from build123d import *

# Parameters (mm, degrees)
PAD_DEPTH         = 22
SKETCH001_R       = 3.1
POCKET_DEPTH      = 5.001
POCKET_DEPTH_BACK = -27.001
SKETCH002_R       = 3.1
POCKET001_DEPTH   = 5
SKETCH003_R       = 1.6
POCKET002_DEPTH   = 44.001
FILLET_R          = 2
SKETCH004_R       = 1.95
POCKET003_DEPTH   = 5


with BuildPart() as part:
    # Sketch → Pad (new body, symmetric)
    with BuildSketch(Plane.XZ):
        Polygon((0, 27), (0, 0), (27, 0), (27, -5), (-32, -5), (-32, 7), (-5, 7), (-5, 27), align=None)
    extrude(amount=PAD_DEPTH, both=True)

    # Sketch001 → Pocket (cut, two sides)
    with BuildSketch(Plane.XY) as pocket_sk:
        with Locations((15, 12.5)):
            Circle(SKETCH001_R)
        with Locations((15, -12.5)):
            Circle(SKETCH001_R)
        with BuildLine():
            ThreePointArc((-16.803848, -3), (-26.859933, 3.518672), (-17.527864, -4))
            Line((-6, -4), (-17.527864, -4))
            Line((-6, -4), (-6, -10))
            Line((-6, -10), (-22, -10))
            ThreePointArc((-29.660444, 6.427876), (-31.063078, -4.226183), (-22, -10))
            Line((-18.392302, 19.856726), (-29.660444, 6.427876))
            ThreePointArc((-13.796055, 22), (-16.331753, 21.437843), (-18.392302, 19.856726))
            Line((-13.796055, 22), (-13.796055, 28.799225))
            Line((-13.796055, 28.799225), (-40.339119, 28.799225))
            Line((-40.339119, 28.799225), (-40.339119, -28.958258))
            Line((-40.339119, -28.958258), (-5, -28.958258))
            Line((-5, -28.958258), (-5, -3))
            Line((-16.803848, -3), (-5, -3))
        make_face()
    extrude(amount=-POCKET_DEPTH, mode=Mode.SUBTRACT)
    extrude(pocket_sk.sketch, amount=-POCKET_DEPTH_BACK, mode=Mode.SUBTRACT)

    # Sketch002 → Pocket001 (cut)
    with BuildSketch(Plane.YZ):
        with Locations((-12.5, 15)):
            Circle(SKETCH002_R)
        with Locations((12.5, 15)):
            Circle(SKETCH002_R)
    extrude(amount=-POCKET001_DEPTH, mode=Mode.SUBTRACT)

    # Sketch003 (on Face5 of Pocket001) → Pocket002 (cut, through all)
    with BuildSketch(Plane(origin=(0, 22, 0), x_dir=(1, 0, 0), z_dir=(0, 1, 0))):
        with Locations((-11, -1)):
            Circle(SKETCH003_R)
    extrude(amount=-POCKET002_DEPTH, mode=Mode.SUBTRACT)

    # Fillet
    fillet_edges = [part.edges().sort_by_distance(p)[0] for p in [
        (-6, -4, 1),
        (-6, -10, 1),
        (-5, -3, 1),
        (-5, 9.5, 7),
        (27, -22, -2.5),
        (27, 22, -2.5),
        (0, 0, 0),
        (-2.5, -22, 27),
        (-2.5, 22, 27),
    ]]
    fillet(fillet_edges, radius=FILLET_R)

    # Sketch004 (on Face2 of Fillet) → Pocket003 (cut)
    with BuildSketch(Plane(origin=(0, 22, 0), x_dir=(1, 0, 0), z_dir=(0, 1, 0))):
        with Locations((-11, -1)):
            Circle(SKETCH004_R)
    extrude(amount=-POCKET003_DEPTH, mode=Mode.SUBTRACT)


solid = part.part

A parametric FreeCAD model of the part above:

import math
import FreeCAD as App
import Part
import Sketcher
from FreeCAD import Vector
Q = App.Units.Quantity


def edges_at(feature, points):
    """Names of the edges that pass closest to the given points."""
    edges = feature.Shape.Edges
    near = lambda p: min(range(len(edges)), key=lambda i: edges[i].distToShape(Part.Vertex(*p))[0])
    return sorted({f"Edge{near(p) + 1}" for p in points})


def add_polygon(sketch, points):
    """Adds a closed chain of lines whose ends are joined by coincident constraints."""
    first, n = sketch.GeometryCount, len(points)
    for a, b in zip(points, points[1:] + points[:1]):
        sketch.addGeometry(Part.LineSegment(App.Vector(*a, 0), App.Vector(*b, 0)), False)
    for i in range(n):
        sketch.addConstraint(Sketcher.Constraint("Coincident", first + i, 2, first + (i + 1) % n, 1))

doc = App.newDocument("Part")
body = doc.addObject("PartDesign::Body", "Body")

# Sketch on XZ plane
sketch1 = doc.addObject("Sketcher::SketchObject", "Sketch")
body.addObject(sketch1)
sketch1.AttachmentSupport = (doc.XZ_Plane, [""])
sketch1.MapMode = "FlatFace"
add_polygon(sketch1, [(0, 0), (0, 27), (-5, 27), (-5, 7), (-32, 7), (-32, -5), (27, -5), (27, 0)])  # lines 0-7
sketch1.addConstraint(Sketcher.Constraint("Vertical", 0))
sketch1.addConstraint(Sketcher.Constraint("Horizontal", 1))
sketch1.addConstraint(Sketcher.Constraint("Vertical", 2))
sketch1.addConstraint(Sketcher.Constraint("Horizontal", 3))
sketch1.addConstraint(Sketcher.Constraint("Vertical", 4))
sketch1.addConstraint(Sketcher.Constraint("Horizontal", 5))
sketch1.addConstraint(Sketcher.Constraint("Vertical", 6))
sketch1.addConstraint(Sketcher.Constraint("Horizontal", 7))
sketch1.addConstraint(Sketcher.Constraint("Coincident", 7, 2, -1, 1))
sketch1.addConstraint(Sketcher.Constraint("Equal", 3, 7))
sketch1.addConstraint(Sketcher.Constraint("Equal", 7, 0))
sketch1.addConstraint(Sketcher.Constraint("Equal", 1, 6))
sketch1.addConstraint(Sketcher.Constraint("DistanceX", 1, 2, 1, 1, 5.0))
sketch1.addConstraint(Sketcher.Constraint("DistanceX", 3, 2, 3, 1, 27.0))
sketch1.addConstraint(Sketcher.Constraint("DistanceY", 2, 2, 2, 1, 20.0))
pad1 = doc.addObject("PartDesign::Pad", "Pad")
body.addObject(pad1)
pad1.Profile = sketch1
pad1.Length = 44
pad1.Midplane = True

# Sketch on XY plane
sketch2 = doc.addObject("Sketcher::SketchObject", "Sketch001")
body.addObject(sketch2)
sketch2.AttachmentSupport = (doc.XY_Plane, [""])
sketch2.MapMode = "FlatFace"
sketch2.addGeometry(Part.Circle(Vector(15, 12.5, 0), Vector(0, 0, 1), 3.1), False)
sketch2.addGeometry(Part.Circle(Vector(15, -12.5, 0), Vector(0, 0, 1), 3.1), False)
sketch2.addGeometry(Part.ArcOfCircle(Part.Circle(Vector(-22, 0, 0), Vector(0, 0, 1), 6), math.radians(-30), math.radians(318)), False)
sketch2.addGeometry(Part.LineSegment(Vector(-17.5, -4, 0), Vector(-6, -4, 0)), False)
sketch2.addGeometry(Part.LineSegment(Vector(-6, -4, 0), Vector(-6, -10, 0)), False)
sketch2.addGeometry(Part.LineSegment(Vector(-6, -10, 0), Vector(-22, -10, 0)), False)
sketch2.addGeometry(Part.ArcOfCircle(Part.Circle(Vector(-22, 0, 0), Vector(0, 0, 1), 10), math.radians(140), math.radians(270)), False)
sketch2.addGeometry(Part.LineSegment(Vector(-29.7, 6.4, 0), Vector(-18.4, 19.9, 0)), False)
sketch2.addGeometry(Part.ArcOfCircle(Part.Circle(Vector(-13.8, 16, 0), Vector(0, 0, 1), 6), math.radians(90), math.radians(140)), False)
sketch2.addGeometry(Part.LineSegment(Vector(-13.8, 22, 0), Vector(-13.8, 28.8, 0)), False)
sketch2.addGeometry(Part.LineSegment(Vector(-13.8, 28.8, 0), Vector(-40.3, 28.8, 0)), False)
sketch2.addGeometry(Part.LineSegment(Vector(-40.3, 28.8, 0), Vector(-40.3, -29, 0)), False)
sketch2.addGeometry(Part.LineSegment(Vector(-40.3, -29, 0), Vector(-5, -29, 0)), False)
sketch2.addGeometry(Part.LineSegment(Vector(-5, -29, 0), Vector(-5, -3, 0)), False)
sketch2.addGeometry(Part.LineSegment(Vector(-5, -3, 0), Vector(-16.8, -3, 0)), False)
sketch2.addConstraint(Sketcher.Constraint("Coincident", 2, 2, 3, 1))
sketch2.addConstraint(Sketcher.Constraint("Coincident", 3, 2, 4, 1))
sketch2.addConstraint(Sketcher.Constraint("Coincident", 4, 2, 5, 1))
sketch2.addConstraint(Sketcher.Constraint("Tangent", 5, 2, 6, 2))
sketch2.addConstraint(Sketcher.Constraint("Tangent", 6, 1, 7, 1))
sketch2.addConstraint(Sketcher.Constraint("Tangent", 7, 2, 8, 2))
sketch2.addConstraint(Sketcher.Constraint("Coincident", 8, 1, 9, 1))
sketch2.addConstraint(Sketcher.Constraint("Coincident", 9, 2, 10, 1))
sketch2.addConstraint(Sketcher.Constraint("Coincident", 10, 2, 11, 1))
sketch2.addConstraint(Sketcher.Constraint("Coincident", 11, 2, 12, 1))
sketch2.addConstraint(Sketcher.Constraint("Coincident", 12, 2, 13, 1))
sketch2.addConstraint(Sketcher.Constraint("Coincident", 13, 2, 14, 1))
sketch2.addConstraint(Sketcher.Constraint("Coincident", 14, 2, 2, 1))
sketch2.addConstraint(Sketcher.Constraint("Horizontal", 3))
sketch2.addConstraint(Sketcher.Constraint("Vertical", 4))
sketch2.addConstraint(Sketcher.Constraint("Horizontal", 5))
sketch2.addConstraint(Sketcher.Constraint("Vertical", 9))
sketch2.addConstraint(Sketcher.Constraint("Horizontal", 10))
sketch2.addConstraint(Sketcher.Constraint("Vertical", 11))
sketch2.addConstraint(Sketcher.Constraint("Horizontal", 12))
sketch2.addConstraint(Sketcher.Constraint("Vertical", 13))
sketch2.addConstraint(Sketcher.Constraint("Horizontal", 14))
sketch2.addConstraint(Sketcher.Constraint("Coincident", 6, 3, 2, 3))
sketch2.addConstraint(Sketcher.Constraint("Equal", 0, 1))
sketch2.addConstraint(Sketcher.Constraint("Equal", 2, 8))
sketch2.addConstraint(Sketcher.Constraint("Symmetric", 0, 3, 1, 3, -1))
sketch2.addConstraint(Sketcher.Constraint("PointOnObject", 2, 3, -1))
sketch2.addConstraint(Sketcher.Constraint("Radius", 2, 6.0))
sketch2.addConstraint(Sketcher.Constraint("Radius", 6, 9.999999))
sketch2.addConstraint(Sketcher.Constraint("Diameter", 0, 6.2))
sketch2.addConstraint(Sketcher.Constraint("DistanceX", 5, 2, 5, 1, 16.0))
sketch2.addConstraint(Sketcher.Constraint("DistanceY", 4, 2, 4, 1, 6.0))
sketch2.addConstraint(Sketcher.Constraint("Angle", 7, Q("50.000003 deg")))
sketch2.addConstraint(Sketcher.Constraint("DistanceX", -1, 1, 0, 3, 15.0))
sketch2.addConstraint(Sketcher.Constraint("DistanceX", 2, 3, -1, 1, 22.000001))
sketch2.addConstraint(Sketcher.Constraint("DistanceY", -1, 1, 8, 3, 15.999999))
sketch2.addConstraint(Sketcher.Constraint("DistanceX", 12, 2, -1, 1, 5.0))
sketch2.addConstraint(Sketcher.Constraint("DistanceY", 13, 2, -1, 1, 3.0))
sketch2.addConstraint(Sketcher.Constraint("DistanceY", 1, 3, 0, 3, 25.0))
sketch2.addConstraint(Sketcher.Constraint("DistanceX", 12, 1, 12, 2, 35.339119))
sketch2.addConstraint(Sketcher.Constraint("DistanceY", 13, 1, 13, 2, 25.958258))
sketch2.addConstraint(Sketcher.Constraint("DistanceY", 7, 2, 9, 2, 8.942499))
sketch2.addConstraint(Sketcher.Constraint("DistanceX", 10, 2, 10, 1, 26.543064))
pocket1 = doc.addObject("PartDesign::Pocket", "Pocket")
body.addObject(pocket1)
pocket1.Profile = sketch2
pocket1.Type = "ThroughAll"
pocket1.Midplane = True

# Sketch on YZ plane
sketch3 = doc.addObject("Sketcher::SketchObject", "Sketch002")
body.addObject(sketch3)
sketch3.AttachmentSupport = (doc.YZ_Plane, [""])
sketch3.MapMode = "FlatFace"
sketch3.addGeometry(Part.Circle(Vector(-12.5, 15, 0), Vector(0, 0, 1), 3.1), False)
sketch3.addGeometry(Part.Circle(Vector(12.5, 15, 0), Vector(0, 0, 1), 3.1), False)
sketch3.addConstraint(Sketcher.Constraint("Equal", 0, 1))
sketch3.addConstraint(Sketcher.Constraint("Symmetric", 0, 3, 1, 3, -2))
sketch3.addConstraint(Sketcher.Constraint("Diameter", 0, 6.2))
sketch3.addConstraint(Sketcher.Constraint("DistanceY", -1, 1, 0, 3, 15.0))
sketch3.addConstraint(Sketcher.Constraint("DistanceX", 0, 3, 1, 3, 25.0))
pocket2 = doc.addObject("PartDesign::Pocket", "Pocket001")
body.addObject(pocket2)
pocket2.Profile = sketch3
pocket2.Length = 5

# Sketch on XZ plane
sketch4 = doc.addObject("Sketcher::SketchObject", "Sketch003")
body.addObject(sketch4)
sketch4.AttachmentSupport = (doc.XZ_Plane, [""])
sketch4.MapMode = "FlatFace"
sketch4.AttachmentOffset = App.Placement(Vector(0, 0, -22), App.Rotation())
sketch4.addGeometry(Part.Circle(Vector(-11, 1, 0), Vector(0, 0, 1), 1.6), False)
sketch4.addConstraint(Sketcher.Constraint("Diameter", 0, 3.2))
sketch4.addConstraint(Sketcher.Constraint("DistanceX", 0, 3, -1, 1, 11.0))
sketch4.addConstraint(Sketcher.Constraint("DistanceY", -1, 1, 0, 3, 1.0))
pocket3 = doc.addObject("PartDesign::Pocket", "Pocket002")
body.addObject(pocket3)
pocket3.Profile = sketch4
pocket3.Type = "ThroughAll"
pocket3.Reversed = True
doc.recompute()

fillet = doc.addObject("PartDesign::Fillet", "Fillet")
body.addObject(fillet)
fillet.Base = (pocket3, edges_at(pocket3, [
    (-6, -4, 1),
    (-6, -10, 1),
    (-5, -3, 1),
    (-5, 9.5, 7),
    (27, -22, -2.5),
    (27, 22, -2.5),
    (0, 0, 0),
    (-2.5, -22, 27),
    (-2.5, 22, 27),
]))
fillet.Radius = 2

# Sketch on XZ plane
sketch5 = doc.addObject("Sketcher::SketchObject", "Sketch004")
body.addObject(sketch5)
sketch5.AttachmentSupport = (doc.XZ_Plane, [""])
sketch5.MapMode = "FlatFace"
sketch5.AttachmentOffset = App.Placement(Vector(0, 0, -22), App.Rotation())
sketch5.addGeometry(Part.Circle(Vector(-11, 1, 0), Vector(0, 0, 1), 1.9), False)
sketch5.addConstraint(Sketcher.Constraint("Diameter", 0, 3.9))
sketch5.addConstraint(Sketcher.Constraint("DistanceX", 0, 3, -1, 1, 11.0))
sketch5.addConstraint(Sketcher.Constraint("DistanceY", -1, 1, 0, 3, 1.0))
pocket4 = doc.addObject("PartDesign::Pocket", "Pocket003")
body.addObject(pocket4)
pocket4.Profile = sketch5
pocket4.Length = 5
pocket4.Reversed = True

doc.recompute()
